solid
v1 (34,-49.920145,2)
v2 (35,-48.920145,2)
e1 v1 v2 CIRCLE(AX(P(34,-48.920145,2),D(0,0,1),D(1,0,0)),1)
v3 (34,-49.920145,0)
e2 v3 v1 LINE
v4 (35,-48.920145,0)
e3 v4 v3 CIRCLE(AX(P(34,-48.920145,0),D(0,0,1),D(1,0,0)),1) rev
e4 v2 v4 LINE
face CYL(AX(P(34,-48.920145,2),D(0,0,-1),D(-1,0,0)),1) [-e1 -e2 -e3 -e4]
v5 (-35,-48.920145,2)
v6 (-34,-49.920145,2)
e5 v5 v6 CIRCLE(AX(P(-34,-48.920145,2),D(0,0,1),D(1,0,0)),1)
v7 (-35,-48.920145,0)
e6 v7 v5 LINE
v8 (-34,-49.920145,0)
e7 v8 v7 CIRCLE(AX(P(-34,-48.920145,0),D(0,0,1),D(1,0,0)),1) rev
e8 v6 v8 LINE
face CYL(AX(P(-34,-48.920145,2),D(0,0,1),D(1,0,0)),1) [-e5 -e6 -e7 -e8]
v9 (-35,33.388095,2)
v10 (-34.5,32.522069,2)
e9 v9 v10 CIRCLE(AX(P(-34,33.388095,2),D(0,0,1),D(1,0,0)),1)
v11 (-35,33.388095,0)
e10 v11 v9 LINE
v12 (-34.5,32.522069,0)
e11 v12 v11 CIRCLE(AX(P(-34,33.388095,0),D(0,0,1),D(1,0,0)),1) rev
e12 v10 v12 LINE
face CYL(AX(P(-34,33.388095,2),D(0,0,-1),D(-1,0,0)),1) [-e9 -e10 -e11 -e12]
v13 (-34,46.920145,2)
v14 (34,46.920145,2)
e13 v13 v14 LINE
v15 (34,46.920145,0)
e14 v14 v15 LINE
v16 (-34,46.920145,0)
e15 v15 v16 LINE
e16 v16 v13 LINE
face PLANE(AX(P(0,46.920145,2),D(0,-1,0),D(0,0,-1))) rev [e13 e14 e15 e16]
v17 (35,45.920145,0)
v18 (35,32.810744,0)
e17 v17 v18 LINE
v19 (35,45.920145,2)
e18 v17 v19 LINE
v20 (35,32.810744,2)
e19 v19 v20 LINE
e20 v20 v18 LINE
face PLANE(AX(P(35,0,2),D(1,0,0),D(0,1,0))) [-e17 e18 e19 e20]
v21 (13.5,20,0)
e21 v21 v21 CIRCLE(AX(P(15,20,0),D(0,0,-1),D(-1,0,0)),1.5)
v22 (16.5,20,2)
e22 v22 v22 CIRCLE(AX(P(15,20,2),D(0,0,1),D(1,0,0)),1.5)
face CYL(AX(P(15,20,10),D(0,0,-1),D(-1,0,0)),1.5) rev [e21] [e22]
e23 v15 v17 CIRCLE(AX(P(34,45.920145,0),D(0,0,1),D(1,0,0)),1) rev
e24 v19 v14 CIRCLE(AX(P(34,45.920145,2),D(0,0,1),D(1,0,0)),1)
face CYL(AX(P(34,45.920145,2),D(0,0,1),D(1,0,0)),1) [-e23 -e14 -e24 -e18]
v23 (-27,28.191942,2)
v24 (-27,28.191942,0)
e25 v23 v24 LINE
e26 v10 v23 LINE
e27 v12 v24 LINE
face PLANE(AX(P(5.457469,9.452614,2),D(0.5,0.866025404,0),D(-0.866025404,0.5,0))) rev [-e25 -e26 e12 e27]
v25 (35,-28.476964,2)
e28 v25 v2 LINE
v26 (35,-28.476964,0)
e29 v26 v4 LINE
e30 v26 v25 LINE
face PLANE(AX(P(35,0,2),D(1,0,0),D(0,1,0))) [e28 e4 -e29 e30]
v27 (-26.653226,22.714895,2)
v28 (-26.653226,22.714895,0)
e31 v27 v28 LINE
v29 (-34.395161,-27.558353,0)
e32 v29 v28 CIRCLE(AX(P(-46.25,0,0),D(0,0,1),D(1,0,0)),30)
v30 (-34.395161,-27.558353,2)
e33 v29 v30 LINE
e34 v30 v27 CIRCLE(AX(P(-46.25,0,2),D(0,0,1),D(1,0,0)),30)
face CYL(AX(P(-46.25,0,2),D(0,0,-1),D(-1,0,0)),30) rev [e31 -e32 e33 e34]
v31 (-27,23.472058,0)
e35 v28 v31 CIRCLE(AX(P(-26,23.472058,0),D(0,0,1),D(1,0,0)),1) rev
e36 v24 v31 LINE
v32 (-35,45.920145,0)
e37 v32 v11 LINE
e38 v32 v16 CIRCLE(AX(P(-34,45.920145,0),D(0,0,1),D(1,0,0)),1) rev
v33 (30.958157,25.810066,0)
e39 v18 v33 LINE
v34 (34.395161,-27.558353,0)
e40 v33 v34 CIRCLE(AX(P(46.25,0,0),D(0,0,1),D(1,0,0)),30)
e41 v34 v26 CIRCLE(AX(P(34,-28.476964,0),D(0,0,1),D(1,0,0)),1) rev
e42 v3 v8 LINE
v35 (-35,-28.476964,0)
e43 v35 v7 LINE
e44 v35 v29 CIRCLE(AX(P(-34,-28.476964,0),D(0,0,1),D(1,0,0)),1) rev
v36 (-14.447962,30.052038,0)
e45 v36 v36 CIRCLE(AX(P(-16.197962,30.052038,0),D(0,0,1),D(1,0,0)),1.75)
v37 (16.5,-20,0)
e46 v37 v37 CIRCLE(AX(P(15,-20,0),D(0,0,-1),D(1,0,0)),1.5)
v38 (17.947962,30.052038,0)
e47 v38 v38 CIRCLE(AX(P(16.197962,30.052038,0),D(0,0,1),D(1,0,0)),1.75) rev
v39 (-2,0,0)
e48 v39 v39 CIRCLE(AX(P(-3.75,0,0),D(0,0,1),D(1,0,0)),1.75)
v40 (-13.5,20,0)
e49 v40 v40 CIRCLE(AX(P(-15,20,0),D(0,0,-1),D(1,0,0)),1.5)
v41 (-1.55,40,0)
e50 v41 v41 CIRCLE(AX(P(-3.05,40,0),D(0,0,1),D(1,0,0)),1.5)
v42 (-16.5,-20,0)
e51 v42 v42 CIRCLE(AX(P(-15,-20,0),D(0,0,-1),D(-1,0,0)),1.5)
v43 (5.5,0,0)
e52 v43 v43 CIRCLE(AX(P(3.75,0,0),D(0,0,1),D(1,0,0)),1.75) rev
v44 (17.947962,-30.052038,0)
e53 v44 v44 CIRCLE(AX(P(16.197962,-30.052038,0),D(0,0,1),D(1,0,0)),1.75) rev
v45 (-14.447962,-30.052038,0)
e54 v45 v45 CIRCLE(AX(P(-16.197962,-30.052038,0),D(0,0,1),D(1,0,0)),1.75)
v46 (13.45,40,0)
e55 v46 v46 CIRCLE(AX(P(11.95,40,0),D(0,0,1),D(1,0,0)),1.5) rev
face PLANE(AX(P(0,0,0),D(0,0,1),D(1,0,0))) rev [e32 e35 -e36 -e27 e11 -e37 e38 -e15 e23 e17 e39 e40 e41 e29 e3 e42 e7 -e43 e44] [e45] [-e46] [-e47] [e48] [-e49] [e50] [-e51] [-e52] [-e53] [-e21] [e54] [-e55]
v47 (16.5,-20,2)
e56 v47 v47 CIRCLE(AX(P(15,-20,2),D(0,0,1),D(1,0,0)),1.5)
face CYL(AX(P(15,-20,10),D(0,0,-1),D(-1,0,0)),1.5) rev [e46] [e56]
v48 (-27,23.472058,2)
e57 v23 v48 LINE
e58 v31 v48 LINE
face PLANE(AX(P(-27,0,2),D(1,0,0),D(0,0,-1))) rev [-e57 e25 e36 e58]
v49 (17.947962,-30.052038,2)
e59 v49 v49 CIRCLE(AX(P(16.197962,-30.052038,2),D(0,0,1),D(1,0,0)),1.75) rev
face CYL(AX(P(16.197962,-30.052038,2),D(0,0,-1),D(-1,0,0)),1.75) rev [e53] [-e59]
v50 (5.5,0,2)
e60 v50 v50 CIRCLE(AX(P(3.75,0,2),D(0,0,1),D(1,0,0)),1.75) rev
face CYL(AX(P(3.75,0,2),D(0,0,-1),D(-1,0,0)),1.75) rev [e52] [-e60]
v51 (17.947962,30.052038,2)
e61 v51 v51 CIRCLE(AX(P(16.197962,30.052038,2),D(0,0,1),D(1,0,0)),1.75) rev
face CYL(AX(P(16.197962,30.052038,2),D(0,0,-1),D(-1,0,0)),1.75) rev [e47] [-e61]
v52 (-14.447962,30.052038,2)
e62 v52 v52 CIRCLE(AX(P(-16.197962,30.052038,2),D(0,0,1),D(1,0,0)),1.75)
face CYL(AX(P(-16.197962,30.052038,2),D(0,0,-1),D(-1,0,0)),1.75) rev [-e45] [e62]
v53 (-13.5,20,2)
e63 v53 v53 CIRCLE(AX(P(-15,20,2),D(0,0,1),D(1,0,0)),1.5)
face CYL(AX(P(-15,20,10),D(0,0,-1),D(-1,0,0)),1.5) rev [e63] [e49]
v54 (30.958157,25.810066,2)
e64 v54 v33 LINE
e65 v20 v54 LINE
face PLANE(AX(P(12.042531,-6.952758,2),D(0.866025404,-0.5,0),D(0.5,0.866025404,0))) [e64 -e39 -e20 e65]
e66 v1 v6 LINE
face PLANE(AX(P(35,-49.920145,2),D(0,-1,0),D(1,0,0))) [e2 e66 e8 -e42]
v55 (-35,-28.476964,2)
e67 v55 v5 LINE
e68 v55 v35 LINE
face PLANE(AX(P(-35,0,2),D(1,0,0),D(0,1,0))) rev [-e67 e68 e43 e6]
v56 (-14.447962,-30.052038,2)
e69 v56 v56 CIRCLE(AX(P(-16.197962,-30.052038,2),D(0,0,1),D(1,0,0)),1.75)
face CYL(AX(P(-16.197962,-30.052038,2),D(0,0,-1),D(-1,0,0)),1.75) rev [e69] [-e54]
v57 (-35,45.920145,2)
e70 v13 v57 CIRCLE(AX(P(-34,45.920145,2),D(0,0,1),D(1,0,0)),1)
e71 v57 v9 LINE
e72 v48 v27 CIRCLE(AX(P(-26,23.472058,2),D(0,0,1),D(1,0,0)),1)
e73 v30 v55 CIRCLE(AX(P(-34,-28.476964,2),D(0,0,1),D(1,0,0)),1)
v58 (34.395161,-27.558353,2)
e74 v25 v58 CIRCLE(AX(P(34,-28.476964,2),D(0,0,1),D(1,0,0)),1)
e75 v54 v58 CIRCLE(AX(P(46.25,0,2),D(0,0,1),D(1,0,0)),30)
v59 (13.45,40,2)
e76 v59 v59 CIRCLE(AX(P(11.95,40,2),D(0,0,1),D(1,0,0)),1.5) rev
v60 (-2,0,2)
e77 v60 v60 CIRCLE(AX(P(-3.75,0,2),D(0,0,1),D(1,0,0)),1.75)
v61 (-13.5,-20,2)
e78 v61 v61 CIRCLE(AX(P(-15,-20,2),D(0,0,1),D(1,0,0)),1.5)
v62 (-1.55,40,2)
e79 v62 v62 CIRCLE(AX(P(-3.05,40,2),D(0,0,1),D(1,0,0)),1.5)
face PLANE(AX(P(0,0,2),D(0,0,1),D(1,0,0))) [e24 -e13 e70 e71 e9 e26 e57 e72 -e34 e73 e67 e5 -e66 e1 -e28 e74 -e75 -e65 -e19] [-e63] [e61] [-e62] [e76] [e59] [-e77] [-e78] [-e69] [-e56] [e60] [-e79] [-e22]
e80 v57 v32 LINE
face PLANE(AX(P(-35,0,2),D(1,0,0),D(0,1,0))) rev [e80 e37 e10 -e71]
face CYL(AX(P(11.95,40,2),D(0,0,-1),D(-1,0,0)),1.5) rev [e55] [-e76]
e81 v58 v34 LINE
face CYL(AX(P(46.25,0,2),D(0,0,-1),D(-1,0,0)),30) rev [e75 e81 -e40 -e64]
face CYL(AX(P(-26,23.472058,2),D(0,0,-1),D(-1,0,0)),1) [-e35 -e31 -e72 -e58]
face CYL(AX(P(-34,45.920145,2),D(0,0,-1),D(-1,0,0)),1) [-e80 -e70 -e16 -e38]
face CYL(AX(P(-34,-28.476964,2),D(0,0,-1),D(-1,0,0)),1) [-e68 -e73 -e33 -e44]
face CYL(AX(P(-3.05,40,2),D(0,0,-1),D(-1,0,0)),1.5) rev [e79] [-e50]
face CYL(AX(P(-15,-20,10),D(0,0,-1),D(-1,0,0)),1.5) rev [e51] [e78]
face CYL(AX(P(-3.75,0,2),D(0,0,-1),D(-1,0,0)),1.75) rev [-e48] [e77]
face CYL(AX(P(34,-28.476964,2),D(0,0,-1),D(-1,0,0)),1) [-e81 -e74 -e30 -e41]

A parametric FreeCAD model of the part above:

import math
import FreeCAD as App
import Part
import Sketcher
from FreeCAD import Vector
Q = App.Units.Quantity


def edges_at(feature, points):
    """Names of the edges that pass closest to the given points."""
    edges = feature.Shape.Edges
    near = lambda p: min(range(len(edges)), key=lambda i: edges[i].distToShape(Part.Vertex(*p))[0])
    return sorted({f"Edge{near(p) + 1}" for p in points})


def add_polygon(sketch, points):
    """Adds a closed chain of lines whose ends are joined by coincident constraints."""
    first, n = sketch.GeometryCount, len(points)
    for a, b in zip(points, points[1:] + points[:1]):
        sketch.addGeometry(Part.LineSegment(App.Vector(*a, 0), App.Vector(*b, 0)), False)
    for i in range(n):
        sketch.addConstraint(Sketcher.Constraint("Coincident", first + i, 2, first + (i + 1) % n, 1))

doc = App.newDocument("Part")
body = doc.addObject("PartDesign::Body", "Body")

sketch1 = doc.addObject("Sketcher::SketchObject", "Sketch")
body.addObject(sketch1)
sketch1.AttachmentSupport = (doc.XY_Plane, [""])
sketch1.MapMode = "FlatFace"
sketch1.addGeometry(Part.LineSegment(Vector(-35, -27.810744, 0), Vector(-35, -46.920145, 0)), False)
sketch1.addGeometry(Part.LineSegment(Vector(-35, -46.920145, 0), Vector(35, -46.920145, 0)), False)
sketch1.addGeometry(Part.LineSegment(Vector(35, -46.920145, 0), Vector(35, -27.810744, 0)), False)
sketch1.addGeometry(Part.ArcOfCircle(Part.Circle(Vector(46.25, 0, 0), Vector(0, 0, 1), 30), math.radians(120.645721), math.radians(247.975687)), False)
sketch1.addGeometry(Part.LineSegment(Vector(30.958157, 25.810066, 0), Vector(35, 32.810744, 0)), False)
sketch1.addGeometry(Part.LineSegment(Vector(35, 32.810744, 0), Vector(35, 46.920145, 0)), False)
sketch1.addGeometry(Part.LineSegment(Vector(35, 46.920145, 0), Vector(16.8, 46.920145, 0)), False)
sketch1.addGeometry(Part.LineSegment(Vector(16.8, 46.920145, 0), Vector(16.8, 51.920145, 0)), False)
sketch1.addGeometry(Part.LineSegment(Vector(16.8, 51.920145, 0), Vector(-10.9, 51.920145, 0)), False)
sketch1.addGeometry(Part.LineSegment(Vector(-10.9, 51.920145, 0), Vector(-10.9, 46.920145, 0)), False)
sketch1.addGeometry(Part.LineSegment(Vector(-10.9, 46.920145, 0), Vector(-35, 46.920145, 0)), False)
sketch1.addGeometry(Part.LineSegment(Vector(-35, 46.920145, 0), Vector(-35, 32.810744, 0)), False)
sketch1.addGeometry(Part.LineSegment(Vector(-35, 32.810744, 0), Vector(-27, 28.191942, 0)), False)
sketch1.addGeometry(Part.LineSegment(Vector(-27, 28.191942, 0), Vector(-27, 23.009509, 0)), False)
sketch1.addGeometry(Part.ArcOfCircle(Part.Circle(Vector(-46.25, 0, 0), Vector(0, 0, 1), 30), math.radians(-67.975687), math.radians(50.083789)), False)
sketch1.addGeometry(Part.Circle(Vector(-16.197962, -30.052038, 0), Vector(0, 0, 1), 1.75), False)
sketch1.addGeometry(Part.Circle(Vector(-3.75, 0, 0), Vector(0, 0, 1), 1.75), False)
sketch1.addGeometry(Part.Circle(Vector(16.197962, -30.052038, 0), Vector(0, 0, 1), 1.75), False)
sketch1.addGeometry(Part.Circle(Vector(3.75, 0, 0), Vector(0, 0, 1), 1.75), False)
sketch1.addGeometry(Part.Circle(Vector(-16.197962, 30.052038, 0), Vector(0, 0, 1), 1.75), False)
sketch1.addGeometry(Part.Circle(Vector(-3.05, 40, 0), Vector(0, 0, 1), 1.5), False)
sketch1.addGeometry(Part.Circle(Vector(16.197962, 30.052038, 0), Vector(0, 0, 1), 1.75), False)
sketch1.addGeometry(Part.Circle(Vector(11.95, 40, 0), Vector(0, 0, 1), 1.5), False)
sketch1.addConstraint(Sketcher.Constraint("Coincident", 0, 2, 1, 1))
sketch1.addConstraint(Sketcher.Constraint("Coincident", 1, 2, 2, 1))
sketch1.addConstraint(Sketcher.Constraint("Coincident", 2, 2, 3, 2))
sketch1.addConstraint(Sketcher.Constraint("Coincident", 3, 1, 4, 1))
sketch1.addConstraint(Sketcher.Constraint("Coincident", 4, 2, 5, 1))
sketch1.addConstraint(Sketcher.Constraint("Coincident", 5, 2, 6, 1))
sketch1.addConstraint(Sketcher.Constraint("Coincident", 6, 2, 7, 1))
sketch1.addConstraint(Sketcher.Constraint("Coincident", 7, 2, 8, 1))
sketch1.addConstraint(Sketcher.Constraint("Coincident", 8, 2, 9, 1))
sketch1.addConstraint(Sketcher.Constraint("Coincident", 9, 2, 10, 1))
sketch1.addConstraint(Sketcher.Constraint("Coincident", 10, 2, 11, 1))
sketch1.addConstraint(Sketcher.Constraint("Coincident", 11, 2, 12, 1))
sketch1.addConstraint(Sketcher.Constraint("Coincident", 12, 2, 13, 1))
sketch1.addConstraint(Sketcher.Constraint("Coincident", 13, 2, 14, 2))
sketch1.addConstraint(Sketcher.Constraint("Coincident", 14, 1, 0, 1))
sketch1.addConstraint(Sketcher.Constraint("Vertical", 0))
sketch1.addConstraint(Sketcher.Constraint("Horizontal", 1))
sketch1.addConstraint(Sketcher.Constraint("Vertical", 2))
sketch1.addConstraint(Sketcher.Constraint("Vertical", 5))
sketch1.addConstraint(Sketcher.Constraint("Horizontal", 6))
sketch1.addConstraint(Sketcher.Constraint("Vertical", 7))
sketch1.addConstraint(Sketcher.Constraint("Horizontal", 8))
sketch1.addConstraint(Sketcher.Constraint("Vertical", 9))
sketch1.addConstraint(Sketcher.Constraint("Horizontal", 10))
sketch1.addConstraint(Sketcher.Constraint("Vertical", 11))
sketch1.addConstraint(Sketcher.Constraint("Vertical", 13))
sketch1.addConstraint(Sketcher.Constraint("Equal", 3, 14))
sketch1.addConstraint(Sketcher.Constraint("Equal", 15, 16))
sketch1.addConstraint(Sketcher.Constraint("Equal", 16, 17))
sketch1.addConstraint(Sketcher.Constraint("Equal", 17, 18))
sketch1.addConstraint(Sketcher.Constraint("Equal", 18, 19))
sketch1.addConstraint(Sketcher.Constraint("Equal", 19, 21))
sketch1.addConstraint(Sketcher.Constraint("Equal", 20, 22))
sketch1.addConstraint(Sketcher.Constraint("Symmetric", 3, 3, 14, 3, -1, 1))
sketch1.addConstraint(Sketcher.Constraint("Symmetric", 16, 3, 18, 3, -1, 1))
sketch1.addConstraint(Sketcher.Constraint("Symmetric", 17, 3, 19, 3, -1, 1))
sketch1.addConstraint(Sketcher.Constraint("Symmetric", 15, 3, 21, 3, -1, 1))
sketch1.addConstraint(Sketcher.Constraint("Symmetric", 0, 2, 5, 2, -1, 1))
sketch1.addConstraint(Sketcher.Constraint("Symmetric", 1, 2, 10, 2, -1, 1))
sketch1.addConstraint(Sketcher.Constraint("Symmetric", 15, 3, 17, 3, -2))
sketch1.addConstraint(Sketcher.Constraint("Symmetric", 4, 2, 11, 2, -2))
sketch1.addConstraint(Sketcher.Constraint("PointOnObject", 3, 3, -1))
sketch1.addConstraint(Sketcher.Constraint("PointOnObject", 16, 3, -1))
sketch1.addConstraint(Sketcher.Constraint("Perpendicular", 4, 12))
sketch1.addConstraint(Sketcher.Constraint("Horizontal", 20, 3, 22, 3))
sketch1.addConstraint(Sketcher.Constraint("Diameter", 20, Q("3 mm")))
sketch1.addConstraint(Sketcher.Constraint("Radius", 3, Q("30 mm")))
sketch1.addConstraint(Sketcher.Constraint("Diameter", 15, Q("3.5 mm")))
sketch1.addConstraint(Sketcher.Constraint("DistanceX", 1, 1, 1, 2, Q("70 mm")))
sketch1.addConstraint(Sketcher.Constraint("DistanceY", 7, 1, 7, 2, Q("5 mm")))
sketch1.addConstraint(Sketcher.Constraint("Angle", 4, Q("60 deg")))
sketch1.addConstraint(Sketcher.Constraint("DistanceX", 6, 2, 6, 1, Q("18.2 mm")))
sketch1.addConstraint(Sketcher.Constraint("DistanceX", 8, 2, 8, 1, Q("27.7 mm")))
sketch1.addConstraint(Sketcher.Constraint("DistanceY", -1, 1, 20, 3, Q("40 mm")))
sketch1.addConstraint(Sketcher.Constraint("DistanceX", 12, 2, -1, 1, Q("27 mm")))
sketch1.addConstraint(Sketcher.Constraint("DistanceX", 16, 3, 3, 3, Q("50 mm")))
sketch1.addConstraint(Sketcher.Constraint("DistanceX", 20, 3, 22, 3, Q("15 mm")))
sketch1.addConstraint(Sketcher.Constraint("DistanceX", 14, 3, 3, 3, Q("92.5 mm")))
sketch1.addConstraint(Sketcher.Constraint("DistanceX", 16, 3, 20, 3, Q("0.7 mm")))
sketch1.addConstraint(Sketcher.Constraint("DistanceY", 0, 2, 0, 1, Q("19.109401 mm")))
sketch1.addConstraint(Sketcher.Constraint("DistanceY", 5, 1, 5, 2, Q("14.109401 mm")))
sketch1.addConstraint(Sketcher.Constraint("DistanceX", 15, 3, -1, 1, Q("16.197962 mm")))
sketch1.addConstraint(Sketcher.Constraint("DistanceY", 15, 3, -1, 1, Q("30.052038 mm")))
pad1 = doc.addObject("PartDesign::Pad", "Pad")
body.addObject(pad1)
pad1.Profile = sketch1
pad1.Length = 2

sketch2 = doc.addObject("Sketcher::SketchObject", "Sketch001")
body.addObject(sketch2)
sketch2.AttachmentSupport = (doc.XY_Plane, [""])
sketch2.MapMode = "FlatFace"
add_polygon(sketch2, [(16.8, 51.920145), (16.8, 46.920145), (-10.9, 46.920145), (-10.9, 51.920145)])
sketch2.addConstraint(Sketcher.Constraint("Vertical", 0))
sketch2.addConstraint(Sketcher.Constraint("Horizontal", 1))
sketch2.addConstraint(Sketcher.Constraint("Vertical", 2))
sketch2.addConstraint(Sketcher.Constraint("Horizontal", 3))
sketch2.addConstraint(Sketcher.Constraint("DistanceY", 0, 2, 0, 1, Q("5 mm")))
sketch2.addConstraint(Sketcher.Constraint("DistanceX", 1, 2, 1, 1, Q("27.7 mm")))
sketch2.addConstraint(Sketcher.Constraint("DistanceX", -1, 1, 0, 2, Q("16.8 mm")))
sketch2.addConstraint(Sketcher.Constraint("DistanceY", -1, 1, 0, 2, Q("46.920145 mm")))
pocket1 = doc.addObject("PartDesign::Pocket", "Pocket")
body.addObject(pocket1)
pocket1.Profile = sketch2
pocket1.Length = 10
pocket1.Reversed = True

sketch3 = doc.addObject("Sketcher::SketchObject", "Sketch002")
body.addObject(sketch3)
sketch3.AttachmentSupport = (doc.XY_Plane, [""])
sketch3.MapMode = "FlatFace"
sketch3.addGeometry(Part.Circle(Vector(15, 20, 0), Vector(0, 0, 1), 1.5), False)
sketch3.addGeometry(Part.Circle(Vector(-15, 20, 0), Vector(0, 0, 1), 1.5), False)
sketch3.addGeometry(Part.Circle(Vector(-15, -20, 0), Vector(0, 0, 1), 1.5), False)
sketch3.addGeometry(Part.Circle(Vector(15, -20, 0), Vector(0, 0, 1), 1.5), False)
sketch3.addConstraint(Sketcher.Constraint("Equal", 0, 1))
sketch3.addConstraint(Sketcher.Constraint("Equal", 1, 2))
sketch3.addConstraint(Sketcher.Constraint("Equal", 2, 3))
sketch3.addConstraint(Sketcher.Constraint("Symmetric", 0, 3, 2, 3, -1, 1))
sketch3.addConstraint(Sketcher.Constraint("Symmetric", 1, 3, 3, 3, -1, 1))
sketch3.addConstraint(Sketcher.Constraint("Symmetric", 0, 3, 1, 3, -2))
sketch3.addConstraint(Sketcher.Constraint("Diameter", 0, Q("3 mm")))
sketch3.addConstraint(Sketcher.Constraint("DistanceX", -1, 1, 0, 3, Q("15 mm")))
sketch3.addConstraint(Sketcher.Constraint("DistanceY", -1, 1, 0, 3, Q("20 mm")))
pocket2 = doc.addObject("PartDesign::Pocket", "Pocket001")
body.addObject(pocket2)
pocket2.Profile = sketch3
pocket2.Length = 10
pocket2.Reversed = True

sketch4 = doc.addObject("Sketcher::SketchObject", "Sketch003")
body.addObject(sketch4)
sketch4.AttachmentSupport = (doc.XY_Plane, [""])
sketch4.MapMode = "FlatFace"
add_polygon(sketch4, [(35, -46.920145), (35, -49.920145), (-35, -49.920145), (-35, -46.920145)])
sketch4.addConstraint(Sketcher.Constraint("Vertical", 0))
sketch4.addConstraint(Sketcher.Constraint("Horizontal", 1))
sketch4.addConstraint(Sketcher.Constraint("Vertical", 2))
sketch4.addConstraint(Sketcher.Constraint("Horizontal", 3))
sketch4.addConstraint(Sketcher.Constraint("DistanceX", 1, 2, 1, 1, Q("70 mm")))
sketch4.addConstraint(Sketcher.Constraint("DistanceY", 0, 2, 0, 1, Q("3 mm")))
sketch4.addConstraint(Sketcher.Constraint("DistanceX", -1, 1, 0, 2, Q("35 mm")))
sketch4.addConstraint(Sketcher.Constraint("DistanceY", 0, 2, -1, 1, Q("49.920145 mm")))
pad2 = doc.addObject("PartDesign::Pad", "Pad001")
body.addObject(pad2)
pad2.Profile = sketch4
pad2.Length = 2
doc.recompute()

fillet = doc.addObject("PartDesign::Fillet", "Fillet")
body.addObject(fillet)
fillet.Base = (pad2, edges_at(pad2, [
    (35, -49.92, 1),
    (-35, -49.92, 1),
    (35, -27.811, 1),
    (-35, -27.811, 1),
    (-27, 23.01, 1),
    (-35, 32.811, 1),
    (-35, 46.92, 1),
    (35, 46.92, 1),
]))
fillet.Radius = 1

doc.recompute()
